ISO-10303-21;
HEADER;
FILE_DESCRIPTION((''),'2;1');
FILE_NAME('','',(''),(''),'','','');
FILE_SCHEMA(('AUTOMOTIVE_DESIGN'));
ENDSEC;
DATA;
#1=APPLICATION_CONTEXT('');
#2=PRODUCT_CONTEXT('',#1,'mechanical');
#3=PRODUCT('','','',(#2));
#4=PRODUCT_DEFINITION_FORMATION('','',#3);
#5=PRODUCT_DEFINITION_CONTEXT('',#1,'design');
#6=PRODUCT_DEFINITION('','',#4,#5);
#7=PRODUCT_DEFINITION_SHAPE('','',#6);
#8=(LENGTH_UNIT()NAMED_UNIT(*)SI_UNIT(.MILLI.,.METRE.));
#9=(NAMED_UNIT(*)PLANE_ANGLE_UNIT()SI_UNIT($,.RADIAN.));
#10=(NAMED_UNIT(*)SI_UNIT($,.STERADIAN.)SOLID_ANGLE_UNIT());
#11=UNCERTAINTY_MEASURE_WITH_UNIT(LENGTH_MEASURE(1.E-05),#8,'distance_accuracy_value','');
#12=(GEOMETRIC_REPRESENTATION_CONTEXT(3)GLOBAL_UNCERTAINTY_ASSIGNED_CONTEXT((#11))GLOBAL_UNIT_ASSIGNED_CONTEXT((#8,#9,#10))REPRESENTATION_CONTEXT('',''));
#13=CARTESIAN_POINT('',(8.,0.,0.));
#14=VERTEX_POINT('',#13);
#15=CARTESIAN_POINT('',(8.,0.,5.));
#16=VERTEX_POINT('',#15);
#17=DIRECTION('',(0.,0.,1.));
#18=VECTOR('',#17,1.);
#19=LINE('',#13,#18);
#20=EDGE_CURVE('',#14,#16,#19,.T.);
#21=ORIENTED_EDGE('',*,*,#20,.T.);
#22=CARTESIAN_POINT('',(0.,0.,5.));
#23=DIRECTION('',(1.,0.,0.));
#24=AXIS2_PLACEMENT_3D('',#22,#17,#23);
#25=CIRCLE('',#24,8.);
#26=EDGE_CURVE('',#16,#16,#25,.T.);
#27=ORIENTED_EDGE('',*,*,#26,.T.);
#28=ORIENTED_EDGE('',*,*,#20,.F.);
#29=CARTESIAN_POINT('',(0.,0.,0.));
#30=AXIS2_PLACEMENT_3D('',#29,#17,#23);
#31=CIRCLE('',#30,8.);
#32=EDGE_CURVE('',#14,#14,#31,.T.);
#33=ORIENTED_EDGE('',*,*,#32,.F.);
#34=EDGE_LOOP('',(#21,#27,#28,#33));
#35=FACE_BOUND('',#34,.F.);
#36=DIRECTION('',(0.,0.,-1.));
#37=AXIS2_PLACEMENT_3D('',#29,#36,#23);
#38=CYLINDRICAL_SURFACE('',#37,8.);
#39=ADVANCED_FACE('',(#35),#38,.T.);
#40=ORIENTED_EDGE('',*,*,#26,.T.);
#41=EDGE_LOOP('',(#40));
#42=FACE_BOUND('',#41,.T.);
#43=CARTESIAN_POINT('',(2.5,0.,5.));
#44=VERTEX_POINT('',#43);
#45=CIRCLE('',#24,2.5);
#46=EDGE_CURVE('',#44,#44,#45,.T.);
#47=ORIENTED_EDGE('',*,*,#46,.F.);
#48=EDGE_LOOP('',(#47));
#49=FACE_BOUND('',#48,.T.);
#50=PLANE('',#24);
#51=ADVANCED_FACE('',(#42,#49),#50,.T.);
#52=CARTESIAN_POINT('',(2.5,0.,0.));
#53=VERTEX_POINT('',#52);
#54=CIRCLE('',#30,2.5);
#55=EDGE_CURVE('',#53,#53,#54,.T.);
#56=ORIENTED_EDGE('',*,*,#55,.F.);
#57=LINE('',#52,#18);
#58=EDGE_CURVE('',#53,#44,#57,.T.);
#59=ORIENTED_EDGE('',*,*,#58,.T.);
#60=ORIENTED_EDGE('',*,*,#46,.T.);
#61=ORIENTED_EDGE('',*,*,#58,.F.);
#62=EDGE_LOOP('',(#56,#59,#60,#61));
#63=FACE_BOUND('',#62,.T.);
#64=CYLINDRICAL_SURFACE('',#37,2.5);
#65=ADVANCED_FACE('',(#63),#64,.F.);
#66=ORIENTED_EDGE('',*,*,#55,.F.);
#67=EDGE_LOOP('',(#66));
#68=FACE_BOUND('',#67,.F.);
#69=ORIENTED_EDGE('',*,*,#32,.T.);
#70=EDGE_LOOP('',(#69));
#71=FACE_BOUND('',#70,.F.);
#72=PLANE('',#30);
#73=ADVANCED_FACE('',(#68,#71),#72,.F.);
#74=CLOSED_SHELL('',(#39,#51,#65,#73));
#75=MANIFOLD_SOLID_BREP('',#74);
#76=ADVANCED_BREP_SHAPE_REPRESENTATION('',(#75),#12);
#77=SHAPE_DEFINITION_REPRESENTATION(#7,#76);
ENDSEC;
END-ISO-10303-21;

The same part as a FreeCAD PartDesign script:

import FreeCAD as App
import Part
import Sketcher
Q = App.Units.Quantity

doc = App.newDocument("Part")
body = doc.addObject("PartDesign::Body", "Body")

sketch1 = body.newObject("Sketcher::SketchObject", "Sketch")
sketch1.AttachmentSupport = (doc.getObject("XY_Plane"), [""])
sketch1.MapMode = "FlatFace"
sketch1.addGeometry(Part.Circle(App.Vector(0, 0, 0), App.Vector(0, 0, 1), 8), False)
sketch1.addGeometry(Part.Circle(App.Vector(0, 0, 0), App.Vector(0, 0, 1), 2.5), False)
sketch1.addConstraint(Sketcher.Constraint("Coincident", 0, 3, -1, 1))
sketch1.addConstraint(Sketcher.Constraint("Coincident", 1, 3, -1, 1))
sketch1.addConstraint(Sketcher.Constraint("Diameter", 0, Q("16 mm")))
sketch1.addConstraint(Sketcher.Constraint("Diameter", 1, Q("5 mm")))
pad1 = body.newObject("PartDesign::Pad", "Pad")
pad1.Profile = sketch1
pad1.Length = 5

doc.recompute()
